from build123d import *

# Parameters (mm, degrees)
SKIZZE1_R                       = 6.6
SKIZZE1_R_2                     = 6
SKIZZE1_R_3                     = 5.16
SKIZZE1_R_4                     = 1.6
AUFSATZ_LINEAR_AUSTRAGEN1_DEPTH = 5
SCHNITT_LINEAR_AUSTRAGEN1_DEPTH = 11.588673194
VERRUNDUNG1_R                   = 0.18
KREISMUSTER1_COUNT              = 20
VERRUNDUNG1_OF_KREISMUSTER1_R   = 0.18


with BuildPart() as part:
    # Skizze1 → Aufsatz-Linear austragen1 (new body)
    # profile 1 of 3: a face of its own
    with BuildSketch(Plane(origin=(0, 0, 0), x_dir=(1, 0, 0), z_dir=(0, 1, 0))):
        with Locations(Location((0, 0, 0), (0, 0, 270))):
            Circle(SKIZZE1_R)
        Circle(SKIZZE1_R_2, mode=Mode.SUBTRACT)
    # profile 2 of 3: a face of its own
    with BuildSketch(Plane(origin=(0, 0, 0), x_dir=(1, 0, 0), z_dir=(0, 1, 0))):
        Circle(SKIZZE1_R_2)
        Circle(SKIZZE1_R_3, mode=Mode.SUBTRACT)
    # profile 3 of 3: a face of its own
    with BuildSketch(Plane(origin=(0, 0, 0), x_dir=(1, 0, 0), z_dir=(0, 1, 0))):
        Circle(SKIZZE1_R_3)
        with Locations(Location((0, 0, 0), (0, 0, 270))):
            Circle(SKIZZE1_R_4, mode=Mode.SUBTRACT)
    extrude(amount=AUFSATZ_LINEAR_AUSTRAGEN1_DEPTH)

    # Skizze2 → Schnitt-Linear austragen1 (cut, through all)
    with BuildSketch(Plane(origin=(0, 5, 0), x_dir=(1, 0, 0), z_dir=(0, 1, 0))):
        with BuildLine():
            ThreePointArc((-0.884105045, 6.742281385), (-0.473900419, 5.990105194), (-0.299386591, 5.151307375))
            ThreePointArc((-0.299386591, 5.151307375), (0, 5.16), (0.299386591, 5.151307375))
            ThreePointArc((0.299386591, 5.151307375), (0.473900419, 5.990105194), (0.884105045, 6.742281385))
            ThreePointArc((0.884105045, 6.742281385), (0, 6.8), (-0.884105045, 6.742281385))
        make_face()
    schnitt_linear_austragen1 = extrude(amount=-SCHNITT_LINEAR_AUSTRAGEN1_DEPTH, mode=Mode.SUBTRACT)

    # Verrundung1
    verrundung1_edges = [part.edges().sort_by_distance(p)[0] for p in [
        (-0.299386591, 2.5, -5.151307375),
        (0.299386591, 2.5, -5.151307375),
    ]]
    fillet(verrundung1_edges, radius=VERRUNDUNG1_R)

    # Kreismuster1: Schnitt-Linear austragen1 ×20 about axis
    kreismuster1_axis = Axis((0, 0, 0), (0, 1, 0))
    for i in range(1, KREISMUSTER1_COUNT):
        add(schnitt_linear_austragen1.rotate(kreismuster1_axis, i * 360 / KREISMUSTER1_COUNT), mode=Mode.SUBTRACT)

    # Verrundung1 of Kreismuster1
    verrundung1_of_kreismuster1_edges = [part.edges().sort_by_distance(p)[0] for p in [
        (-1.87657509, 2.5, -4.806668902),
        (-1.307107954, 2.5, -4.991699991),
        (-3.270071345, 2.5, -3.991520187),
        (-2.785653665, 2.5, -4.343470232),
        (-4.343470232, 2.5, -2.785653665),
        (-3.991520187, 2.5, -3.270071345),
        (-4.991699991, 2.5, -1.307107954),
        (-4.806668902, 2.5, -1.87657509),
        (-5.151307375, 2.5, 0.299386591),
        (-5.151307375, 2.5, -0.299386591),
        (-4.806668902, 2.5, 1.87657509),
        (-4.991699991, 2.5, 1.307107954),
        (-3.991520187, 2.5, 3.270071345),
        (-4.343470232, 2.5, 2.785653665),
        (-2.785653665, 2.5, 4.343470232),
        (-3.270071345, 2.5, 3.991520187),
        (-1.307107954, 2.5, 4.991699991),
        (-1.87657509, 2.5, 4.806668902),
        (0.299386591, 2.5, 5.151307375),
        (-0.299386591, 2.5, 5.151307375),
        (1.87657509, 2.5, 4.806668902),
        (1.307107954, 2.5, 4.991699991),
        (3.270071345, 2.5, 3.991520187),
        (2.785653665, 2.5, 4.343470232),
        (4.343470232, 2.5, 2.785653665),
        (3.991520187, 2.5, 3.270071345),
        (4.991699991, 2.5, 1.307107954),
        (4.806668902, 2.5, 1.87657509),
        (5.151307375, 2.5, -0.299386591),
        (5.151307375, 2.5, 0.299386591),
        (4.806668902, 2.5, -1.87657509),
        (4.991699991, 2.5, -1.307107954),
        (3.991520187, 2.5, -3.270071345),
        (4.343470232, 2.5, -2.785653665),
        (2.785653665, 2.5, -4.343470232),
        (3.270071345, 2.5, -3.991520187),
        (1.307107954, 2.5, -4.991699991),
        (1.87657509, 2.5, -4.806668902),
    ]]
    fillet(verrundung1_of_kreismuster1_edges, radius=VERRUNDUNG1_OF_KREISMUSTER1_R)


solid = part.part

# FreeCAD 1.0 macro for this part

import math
import FreeCAD as App
import Part
import Sketcher

V = App.Vector
Q = App.Units.Quantity


def edges_at(feature, points):
    """Names of the edges that pass closest to the given points."""
    edges = feature.Shape.Edges
    near = lambda p: min(range(len(edges)), key=lambda i: edges[i].distToShape(Part.Vertex(*p))[0])
    return sorted({f"Edge{near(p) + 1}" for p in points})

doc = App.newDocument("Part")
body = doc.addObject("PartDesign::Body", "Body")

# Sketch on XZ plane
sketch1 = body.newObject("Sketcher::SketchObject", "Sketch")
sketch1.AttachmentSupport = (doc.getObject("XZ_Plane"), [""])
sketch1.MapMode = "FlatFace"
sketch1.addGeometry(Part.Circle(V(0, 0, 0), V(0, 0, 1), 6.6), False)
sketch1.addGeometry(Part.Circle(V(0, 0, 0), V(0, 0, 1), 1.6), False)
sketch1.addConstraint(Sketcher.Constraint("Coincident", 0, 3, -1, 1))
sketch1.addConstraint(Sketcher.Constraint("Coincident", 1, 3, -1, 1))
sketch1.addConstraint(Sketcher.Constraint("Diameter", 0, Q("13.2 mm")))
sketch1.addConstraint(Sketcher.Constraint("Diameter", 1, Q("3.2 mm")))
pad1 = body.newObject("PartDesign::Pad", "Pad")
pad1.Profile = sketch1
pad1.Length = 5
pad1.Reversed = True

# Sketch on XZ plane
sketch2 = body.newObject("Sketcher::SketchObject", "Sketch001")
sketch2.AttachmentSupport = (doc.getObject("XZ_Plane"), [""])
sketch2.MapMode = "FlatFace"
sketch2.AttachmentOffset = App.Placement(V(0, 0, -5), App.Rotation())
sketch2.addGeometry(Part.ArcOfCircle(Part.Circle(V(-3.2, -5, 0), V(0, 0, 1), 2.9), math.radians(-37), math.radians(-3)), False)
sketch2.addGeometry(Part.ArcOfCircle(Part.Circle(V(0, 0, 0), V(0, 0, 1), 5.2), math.radians(-93.33), math.radians(-86.67)), False)
sketch2.addGeometry(Part.ArcOfCircle(Part.Circle(V(3.2, -5, 0), V(0, 0, 1), 2.9), math.radians(-177), math.radians(-143)), False)
sketch2.addGeometry(Part.ArcOfCircle(Part.Circle(V(0, 0, 0), V(0, 0, 1), 6.8), math.radians(-97.47), math.radians(-82.53)), False)
sketch2.addConstraint(Sketcher.Constraint("Coincident", 0, 2, 1, 1))
sketch2.addConstraint(Sketcher.Constraint("Coincident", 1, 2, 2, 1))
sketch2.addConstraint(Sketcher.Constraint("Coincident", 2, 2, 3, 2))
sketch2.addConstraint(Sketcher.Constraint("Coincident", 3, 1, 0, 1))
sketch2.addConstraint(Sketcher.Constraint("Coincident", 1, 3, -1, 1))
sketch2.addConstraint(Sketcher.Constraint("Coincident", 3, 3, -1, 1))
sketch2.addConstraint(Sketcher.Constraint("Equal", 0, 2))
sketch2.addConstraint(Sketcher.Constraint("Symmetric", 0, 3, 2, 3, -2))
sketch2.addConstraint(Sketcher.Constraint("Radius", 3, Q("6.8 mm")))
sketch2.addConstraint(Sketcher.Constraint("Radius", 1, Q("5.16 mm")))
sketch2.addConstraint(Sketcher.Constraint("Radius", 0, Q("2.923233 mm")))
sketch2.addConstraint(Sketcher.Constraint("DistanceY", 0, 3, -1, 1, Q("4.981699 mm")))
sketch2.addConstraint(Sketcher.Constraint("DistanceX", 0, 3, 2, 2, Q("4.1018 mm")))
pocket1 = body.newObject("PartDesign::Pocket", "Pocket")
pocket1.Profile = sketch2
pocket1.Type = "ThroughAll"
pocket1.Reversed = True
doc.recompute()

fillet = body.newObject("PartDesign::Fillet", "Fillet")
fillet.Base = (pocket1, edges_at(pocket1, [(-0.299, 2.5, -5.151), (0.299, 2.5, -5.151)]))
fillet.Radius = 0.18
doc.recompute()

polarpattern = body.newObject("PartDesign::PolarPattern", "PolarPattern")
polarpattern.Originals = [pocket1]
polarpattern.Axis = (doc.getObject("Y_Axis"), [""])
polarpattern.Angle = 360
polarpattern.Occurrences = 20
body.Tip = polarpattern
doc.recompute()

fillet2 = body.newObject("PartDesign::Fillet", "Fillet001")
fillet2.Base = (polarpattern, edges_at(polarpattern, [
    (-1.877, 2.5, -4.807),
    (-1.307, 2.5, -4.992),
    (-3.27, 2.5, -3.992),
    (-2.786, 2.5, -4.343),
    (-4.343, 2.5, -2.786),
    (-3.992, 2.5, -3.27),
    (-4.992, 2.5, -1.307),
    (-4.807, 2.5, -1.877),
    (-5.151, 2.5, 0.299),
    (-5.151, 2.5, -0.299),
    (-4.807, 2.5, 1.877),
    (-4.992, 2.5, 1.307),
    (-3.992, 2.5, 3.27),
    (-4.343, 2.5, 2.786),
    (-2.786, 2.5, 4.343),
    (-3.27, 2.5, 3.992),
    (-1.307, 2.5, 4.992),
    (-1.877, 2.5, 4.807),
    (0.299, 2.5, 5.151),
    (-0.299, 2.5, 5.151),
    (1.877, 2.5, 4.807),
    (1.307, 2.5, 4.992),
    (3.27, 2.5, 3.992),
    (2.786, 2.5, 4.343),
    (4.343, 2.5, 2.786),
    (3.992, 2.5, 3.27),
    (4.992, 2.5, 1.307),
    (4.807, 2.5, 1.877),
    (5.151, 2.5, -0.299),
    (5.151, 2.5, 0.299),
    (4.807, 2.5, -1.877),
    (4.992, 2.5, -1.307),
    (3.992, 2.5, -3.27),
    (4.343, 2.5, -2.786),
    (2.786, 2.5, -4.343),
    (3.27, 2.5, -3.992),
    (1.307, 2.5, -4.992),
    (1.877, 2.5, -4.807),
]))
fillet2.Radius = 0.18

doc.recompute()
